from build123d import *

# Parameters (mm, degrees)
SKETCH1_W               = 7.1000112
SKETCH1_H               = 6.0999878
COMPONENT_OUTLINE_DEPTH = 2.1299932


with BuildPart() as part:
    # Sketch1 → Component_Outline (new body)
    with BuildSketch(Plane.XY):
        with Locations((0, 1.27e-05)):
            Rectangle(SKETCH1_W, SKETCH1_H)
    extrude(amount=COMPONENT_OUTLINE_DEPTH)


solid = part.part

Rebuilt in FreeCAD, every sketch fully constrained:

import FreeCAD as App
import Part
import Sketcher
Q = App.Units.Quantity


def add_polygon(sketch, points):
    """Adds a closed chain of lines whose ends are joined by coincident constraints."""
    first, n = sketch.GeometryCount, len(points)
    for a, b in zip(points, points[1:] + points[:1]):
        sketch.addGeometry(Part.LineSegment(App.Vector(*a, 0), App.Vector(*b, 0)), False)
    for i in range(n):
        sketch.addConstraint(Sketcher.Constraint("Coincident", first + i, 2, first + (i + 1) % n, 1))

doc = App.newDocument("Part")
body = doc.addObject("PartDesign::Body", "Body")

# Sketch on XY plane
sketch1 = doc.addObject("Sketcher::SketchObject", "Sketch")
body.addObject(sketch1)
sketch1.AttachmentSupport = (doc.XY_Plane, [""])
sketch1.MapMode = "FlatFace"
add_polygon(sketch1, [(-3.550006, 3.050007), (-3.550006, -3.049981), (3.550006, -3.049981), (3.550006, 3.050007)])  # lines 0-3
sketch1.addConstraint(Sketcher.Constraint("Vertical", 0))
sketch1.addConstraint(Sketcher.Constraint("Horizontal", 1))
sketch1.addConstraint(Sketcher.Constraint("Vertical", 2))
sketch1.addConstraint(Sketcher.Constraint("Horizontal", 3))
sketch1.addConstraint(Sketcher.Constraint("DistanceX", 1, 1, 1, 2, Q("7.100011 mm")))
sketch1.addConstraint(Sketcher.Constraint("DistanceY", 0, 2, 0, 1, Q("6.099988 mm")))
sketch1.addConstraint(Sketcher.Constraint("DistanceY", 0, 2, -1, 1, Q("3.049981 mm")))
sketch1.addConstraint(Sketcher.Constraint("DistanceX", 0, 2, -1, 1, Q("3.550006 mm")))
pad1 = doc.addObject("PartDesign::Pad", "Pad")
body.addObject(pad1)
pad1.Profile = sketch1
pad1.Length = 2.129993

doc.recompute()
